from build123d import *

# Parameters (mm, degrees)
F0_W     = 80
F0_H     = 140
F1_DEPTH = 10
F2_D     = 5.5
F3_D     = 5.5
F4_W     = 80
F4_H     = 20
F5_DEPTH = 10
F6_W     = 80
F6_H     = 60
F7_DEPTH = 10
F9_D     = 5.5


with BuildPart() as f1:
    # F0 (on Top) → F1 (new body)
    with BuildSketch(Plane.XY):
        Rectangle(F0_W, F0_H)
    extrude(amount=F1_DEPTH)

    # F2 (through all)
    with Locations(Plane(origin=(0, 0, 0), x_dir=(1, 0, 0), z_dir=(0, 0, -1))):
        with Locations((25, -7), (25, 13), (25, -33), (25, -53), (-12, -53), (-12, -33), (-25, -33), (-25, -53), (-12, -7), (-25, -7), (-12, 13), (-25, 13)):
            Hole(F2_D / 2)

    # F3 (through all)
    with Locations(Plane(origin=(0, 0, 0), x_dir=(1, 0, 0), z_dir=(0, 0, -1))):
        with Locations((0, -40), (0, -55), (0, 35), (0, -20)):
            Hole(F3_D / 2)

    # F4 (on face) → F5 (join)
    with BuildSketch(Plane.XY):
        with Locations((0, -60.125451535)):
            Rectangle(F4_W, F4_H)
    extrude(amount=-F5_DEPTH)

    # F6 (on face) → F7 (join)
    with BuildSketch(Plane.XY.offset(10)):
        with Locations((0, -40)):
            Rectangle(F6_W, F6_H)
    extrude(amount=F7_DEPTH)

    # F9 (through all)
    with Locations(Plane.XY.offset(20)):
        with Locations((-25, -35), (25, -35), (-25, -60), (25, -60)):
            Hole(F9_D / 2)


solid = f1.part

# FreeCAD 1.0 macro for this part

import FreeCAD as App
import Part
import Sketcher

doc = App.newDocument("Part")
params = doc.addObject("Spreadsheet::Sheet", "Params")
for row, (alias, value) in enumerate([
    ("sketch1_width", "80 mm"),
    ("sketch1_height", "140 mm"),
    ("pad1_length", "10 mm"),
    ("sketch2_diameter", "5.5 mm"),
    ("hole_diameter", "5.5 mm"),
    ("sketch3_diameter", "5.5 mm"),
    ("hole2_diameter", "5.5 mm"),
    ("sketch4_width", "80 mm"),
    ("sketch4_height", "20 mm"),
    ("pad2_length", "10 mm"),
    ("sketch5_width", "80 mm"),
    ("sketch5_height", "60 mm"),
    ("pad3_length", "10 mm"),
    ("sketch6_diameter", "5.5 mm"),
    ("hole3_diameter", "5.5 mm"),
], start=1):
    params.set(f"A{row}", alias)
    params.set(f"B{row}", "=" + value)
    params.setAlias(f"B{row}", alias)

body = doc.addObject("PartDesign::Body", "Body")

# Sketch on XY plane
sketch1 = body.newObject("Sketcher::SketchObject", "Sketch")
sketch1.AttachmentSupport = (doc.getObject("XY_Plane"), [""])
sketch1.MapMode = "FlatFace"
sketch1.addGeometry(Part.LineSegment(App.Vector(-40, 70, 0), App.Vector(-40, -70, 0)), False)
sketch1.addGeometry(Part.LineSegment(App.Vector(-40, -70, 0), App.Vector(40, -70, 0)), False)
sketch1.addGeometry(Part.LineSegment(App.Vector(40, -70, 0), App.Vector(40, 70, 0)), False)
sketch1.addGeometry(Part.LineSegment(App.Vector(40, 70, 0), App.Vector(-40, 70, 0)), False)
sketch1.addConstraint(Sketcher.Constraint("Coincident", 0, 2, 1, 1))
sketch1.addConstraint(Sketcher.Constraint("Coincident", 1, 2, 2, 1))
sketch1.addConstraint(Sketcher.Constraint("Coincident", 2, 2, 3, 1))
sketch1.addConstraint(Sketcher.Constraint("Coincident", 3, 2, 0, 1))
sketch1.addConstraint(Sketcher.Constraint("Vertical", 0))
sketch1.addConstraint(Sketcher.Constraint("Horizontal", 1))
sketch1.addConstraint(Sketcher.Constraint("Vertical", 2))
sketch1.addConstraint(Sketcher.Constraint("Horizontal", 3))
sketch1.addConstraint(Sketcher.Constraint("Symmetric", 0, 2, 2, 2, -1, 1))
sketch1.addConstraint(Sketcher.Constraint("DistanceX", 1, 1, 1, 2, 80.0))
sketch1.addConstraint(Sketcher.Constraint("DistanceY", 0, 2, 0, 1, 140.0))
sketch1.setExpression("Constraints[9]", "Params.sketch1_width")
sketch1.setExpression("Constraints[10]", "Params.sketch1_height")
pad1 = body.newObject("PartDesign::Pad", "Pad")
pad1.Profile = sketch1
pad1.setExpression("Length", "Params.pad1_length")

# Sketch on XY plane
sketch2 = body.newObject("Sketcher::SketchObject", "Sketch001")
sketch2.AttachmentSupport = (doc.getObject("XY_Plane"), [""])
sketch2.MapMode = "FlatFace"
sketch2.addGeometry(Part.Circle(App.Vector(25, 7, 0), App.Vector(0, 0, 1), 2.8), False)
sketch2.addGeometry(Part.Circle(App.Vector(25, -13, 0), App.Vector(0, 0, 1), 2.8), False)
sketch2.addGeometry(Part.Circle(App.Vector(25, 33, 0), App.Vector(0, 0, 1), 2.8), False)
sketch2.addGeometry(Part.Circle(App.Vector(25, 53, 0), App.Vector(0, 0, 1), 2.8), False)
sketch2.addGeometry(Part.Circle(App.Vector(-12, 53, 0), App.Vector(0, 0, 1), 2.8), False)
sketch2.addGeometry(Part.Circle(App.Vector(-12, 33, 0), App.Vector(0, 0, 1), 2.8), False)
sketch2.addGeometry(Part.Circle(App.Vector(-25, 33, 0), App.Vector(0, 0, 1), 2.8), False)
sketch2.addGeometry(Part.Circle(App.Vector(-25, 53, 0), App.Vector(0, 0, 1), 2.8), False)
sketch2.addGeometry(Part.Circle(App.Vector(-12, 7, 0), App.Vector(0, 0, 1), 2.8), False)
sketch2.addGeometry(Part.Circle(App.Vector(-25, 7, 0), App.Vector(0, 0, 1), 2.8), False)
sketch2.addGeometry(Part.Circle(App.Vector(-12, -13, 0), App.Vector(0, 0, 1), 2.8), False)
sketch2.addGeometry(Part.Circle(App.Vector(-25, -13, 0), App.Vector(0, 0, 1), 2.8), False)
sketch2.addConstraint(Sketcher.Constraint("Equal", 0, 1))
sketch2.addConstraint(Sketcher.Constraint("Equal", 1, 2))
sketch2.addConstraint(Sketcher.Constraint("Equal", 2, 3))
sketch2.addConstraint(Sketcher.Constraint("Equal", 3, 4))
sketch2.addConstraint(Sketcher.Constraint("Equal", 4, 5))
sketch2.addConstraint(Sketcher.Constraint("Equal", 5, 6))
sketch2.addConstraint(Sketcher.Constraint("Equal", 6, 7))
sketch2.addConstraint(Sketcher.Constraint("Equal", 7, 8))
sketch2.addConstraint(Sketcher.Constraint("Equal", 8, 9))
sketch2.addConstraint(Sketcher.Constraint("Equal", 9, 10))
sketch2.addConstraint(Sketcher.Constraint("Equal", 10, 11))
sketch2.addConstraint(Sketcher.Constraint("Symmetric", 2, 3, 6, 3, -2))
sketch2.addConstraint(Sketcher.Constraint("Symmetric", 3, 3, 7, 3, -2))
sketch2.addConstraint(Sketcher.Constraint("Symmetric", 0, 3, 9, 3, -2))
sketch2.addConstraint(Sketcher.Constraint("Symmetric", 1, 3, 11, 3, -2))
sketch2.addConstraint(Sketcher.Constraint("Horizontal", 3, 3, 4, 3))
sketch2.addConstraint(Sketcher.Constraint("Horizontal", 2, 3, 5, 3))
sketch2.addConstraint(Sketcher.Constraint("Horizontal", 0, 3, 8, 3))
sketch2.addConstraint(Sketcher.Constraint("Horizontal", 1, 3, 10, 3))
sketch2.addConstraint(Sketcher.Constraint("Vertical", 0, 3, 1, 3))
sketch2.addConstraint(Sketcher.Constraint("Vertical", 1, 3, 2, 3))
sketch2.addConstraint(Sketcher.Constraint("Vertical", 2, 3, 3, 3))
sketch2.addConstraint(Sketcher.Constraint("Vertical", 4, 3, 5, 3))
sketch2.addConstraint(Sketcher.Constraint("Vertical", 5, 3, 8, 3))
sketch2.addConstraint(Sketcher.Constraint("Vertical", 8, 3, 10, 3))
sketch2.addConstraint(Sketcher.Constraint("Diameter", 0, 5.5))
sketch2.addConstraint(Sketcher.Constraint("DistanceX", -1, 1, 0, 3, 25.0))
sketch2.addConstraint(Sketcher.Constraint("DistanceY", -1, 1, 0, 3, 7.0))
sketch2.addConstraint(Sketcher.Constraint("DistanceY", 1, 3, -1, 1, 13.0))
sketch2.addConstraint(Sketcher.Constraint("DistanceY", -1, 1, 2, 3, 33.0))
sketch2.addConstraint(Sketcher.Constraint("DistanceY", -1, 1, 3, 3, 53.0))
sketch2.addConstraint(Sketcher.Constraint("DistanceX", 4, 3, -1, 1, 12.0))
sketch2.setExpression("Constraints[25]", "Params.sketch2_diameter")
doc.recompute()
hole = body.newObject("PartDesign::Hole", "Hole")
hole.Profile = sketch2
hole.ThreadType = "None"
hole.setExpression("Diameter", "Params.hole_diameter")
hole.DepthType = "ThroughAll"
hole.Reversed = True

# Sketch on XY plane
sketch3 = body.newObject("Sketcher::SketchObject", "Sketch002")
sketch3.AttachmentSupport = (doc.getObject("XY_Plane"), [""])
sketch3.MapMode = "FlatFace"
sketch3.addGeometry(Part.Circle(App.Vector(0, 40, 0), App.Vector(0, 0, 1), 2.8), False)
sketch3.addGeometry(Part.Circle(App.Vector(0, 55, 0), App.Vector(0, 0, 1), 2.8), False)
sketch3.addGeometry(Part.Circle(App.Vector(0, -35, 0), App.Vector(0, 0, 1), 2.8), False)
sketch3.addGeometry(Part.Circle(App.Vector(0, 20, 0), App.Vector(0, 0, 1), 2.8), False)
sketch3.addConstraint(Sketcher.Constraint("Equal", 0, 1))
sketch3.addConstraint(Sketcher.Constraint("Equal", 1, 2))
sketch3.addConstraint(Sketcher.Constraint("Equal", 2, 3))
sketch3.addConstraint(Sketcher.Constraint("PointOnObject", 0, 3, -2))
sketch3.addConstraint(Sketcher.Constraint("PointOnObject", 1, 3, -2))
sketch3.addConstraint(Sketcher.Constraint("PointOnObject", 2, 3, -2))
sketch3.addConstraint(Sketcher.Constraint("PointOnObject", 3, 3, -2))
sketch3.addConstraint(Sketcher.Constraint("Diameter", 0, 5.5))
sketch3.addConstraint(Sketcher.Constraint("DistanceY", -1, 1, 0, 3, 40.0))
sketch3.addConstraint(Sketcher.Constraint("DistanceY", -1, 1, 1, 3, 55.0))
sketch3.addConstraint(Sketcher.Constraint("DistanceY", 2, 3, -1, 1, 35.0))
sketch3.addConstraint(Sketcher.Constraint("DistanceY", -1, 1, 3, 3, 20.0))
sketch3.setExpression("Constraints[7]", "Params.sketch3_diameter")
doc.recompute()
hole2 = body.newObject("PartDesign::Hole", "Hole001")
hole2.Profile = sketch3
hole2.ThreadType = "None"
hole2.setExpression("Diameter", "Params.hole2_diameter")
hole2.DepthType = "ThroughAll"
hole2.Reversed = True

# Sketch on XY plane
sketch4 = body.newObject("Sketcher::SketchObject", "Sketch003")
sketch4.AttachmentSupport = (doc.getObject("XY_Plane"), [""])
sketch4.MapMode = "FlatFace"
sketch4.addGeometry(Part.LineSegment(App.Vector(-40, -50, 0), App.Vector(-40, -70, 0)), False)
sketch4.addGeometry(Part.LineSegment(App.Vector(-40, -70, 0), App.Vector(40, -70, 0)), False)
sketch4.addGeometry(Part.LineSegment(App.Vector(40, -70, 0), App.Vector(40, -50, 0)), False)
sketch4.addGeometry(Part.LineSegment(App.Vector(40, -50, 0), App.Vector(-40, -50, 0)), False)
sketch4.addConstraint(Sketcher.Constraint("Coincident", 0, 2, 1, 1))
sketch4.addConstraint(Sketcher.Constraint("Coincident", 1, 2, 2, 1))
sketch4.addConstraint(Sketcher.Constraint("Coincident", 2, 2, 3, 1))
sketch4.addConstraint(Sketcher.Constraint("Coincident", 3, 2, 0, 1))
sketch4.addConstraint(Sketcher.Constraint("Vertical", 0))
sketch4.addConstraint(Sketcher.Constraint("Horizontal", 1))
sketch4.addConstraint(Sketcher.Constraint("Vertical", 2))
sketch4.addConstraint(Sketcher.Constraint("Horizontal", 3))
sketch4.addConstraint(Sketcher.Constraint("DistanceX", 1, 1, 1, 2, 80.0))
sketch4.addConstraint(Sketcher.Constraint("DistanceY", 0, 2, 0, 1, 20.0))
sketch4.addConstraint(Sketcher.Constraint("DistanceX", 0, 2, -1, 1, 40.0))
sketch4.addConstraint(Sketcher.Constraint("DistanceY", 0, 2, -1, 1, 70.125452))
sketch4.setExpression("Constraints[8]", "Params.sketch4_width")
sketch4.setExpression("Constraints[9]", "Params.sketch4_height")
pad2 = body.newObject("PartDesign::Pad", "Pad001")
pad2.Profile = sketch4
pad2.setExpression("Length", "Params.pad2_length")
pad2.Reversed = True

# Sketch on XY plane
sketch5 = body.newObject("Sketcher::SketchObject", "Sketch004")
sketch5.AttachmentSupport = (doc.getObject("XY_Plane"), [""])
sketch5.MapMode = "FlatFace"
sketch5.AttachmentOffset = App.Placement(App.Vector(0, 0, 10), App.Rotation())
sketch5.addGeometry(Part.LineSegment(App.Vector(-40, -10, 0), App.Vector(-40, -70, 0)), False)
sketch5.addGeometry(Part.LineSegment(App.Vector(-40, -70, 0), App.Vector(40, -70, 0)), False)
sketch5.addGeometry(Part.LineSegment(App.Vector(40, -70, 0), App.Vector(40, -10, 0)), False)
sketch5.addGeometry(Part.LineSegment(App.Vector(40, -10, 0), App.Vector(-40, -10, 0)), False)
sketch5.addConstraint(Sketcher.Constraint("Coincident", 0, 2, 1, 1))
sketch5.addConstraint(Sketcher.Constraint("Coincident", 1, 2, 2, 1))
sketch5.addConstraint(Sketcher.Constraint("Coincident", 2, 2, 3, 1))
sketch5.addConstraint(Sketcher.Constraint("Coincident", 3, 2, 0, 1))
sketch5.addConstraint(Sketcher.Constraint("Vertical", 0))
sketch5.addConstraint(Sketcher.Constraint("Horizontal", 1))
sketch5.addConstraint(Sketcher.Constraint("Vertical", 2))
sketch5.addConstraint(Sketcher.Constraint("Horizontal", 3))
sketch5.addConstraint(Sketcher.Constraint("DistanceX", 1, 1, 1, 2, 80.0))
sketch5.addConstraint(Sketcher.Constraint("DistanceY", 0, 2, 0, 1, 60.0))
sketch5.addConstraint(Sketcher.Constraint("DistanceX", 0, 2, -1, 1, 40.0))
sketch5.addConstraint(Sketcher.Constraint("DistanceY", 0, 2, -1, 1, 70.0))
sketch5.setExpression("Constraints[8]", "Params.sketch5_width")
sketch5.setExpression("Constraints[9]", "Params.sketch5_height")
pad3 = body.newObject("PartDesign::Pad", "Pad002")
pad3.Profile = sketch5
pad3.setExpression("Length", "Params.pad3_length")

# Sketch on XY plane
sketch6 = body.newObject("Sketcher::SketchObject", "Sketch005")
sketch6.AttachmentSupport = (doc.getObject("XY_Plane"), [""])
sketch6.MapMode = "FlatFace"
sketch6.AttachmentOffset = App.Placement(App.Vector(0, 0, 20), App.Rotation())
sketch6.addGeometry(Part.Circle(App.Vector(-25, -35, 0), App.Vector(0, 0, 1), 2.8), False)
sketch6.addGeometry(Part.Circle(App.Vector(25, -35, 0), App.Vector(0, 0, 1), 2.8), False)
sketch6.addGeometry(Part.Circle(App.Vector(-25, -60, 0), App.Vector(0, 0, 1), 2.8), False)
sketch6.addGeometry(Part.Circle(App.Vector(25, -60, 0), App.Vector(0, 0, 1), 2.8), False)
sketch6.addConstraint(Sketcher.Constraint("Equal", 0, 1))
sketch6.addConstraint(Sketcher.Constraint("Equal", 1, 2))
sketch6.addConstraint(Sketcher.Constraint("Equal", 2, 3))
sketch6.addConstraint(Sketcher.Constraint("Symmetric", 0, 3, 1, 3, -2))
sketch6.addConstraint(Sketcher.Constraint("Symmetric", 2, 3, 3, 3, -2))
sketch6.addConstraint(Sketcher.Constraint("Vertical", 0, 3, 2, 3))
sketch6.addConstraint(Sketcher.Constraint("Diameter", 0, 5.5))
sketch6.addConstraint(Sketcher.Constraint("DistanceX", 0, 3, -1, 1, 25.0))
sketch6.addConstraint(Sketcher.Constraint("DistanceY", 0, 3, -1, 1, 35.0))
sketch6.addConstraint(Sketcher.Constraint("DistanceY", 2, 3, -1, 1, 60.0))
sketch6.setExpression("Constraints[6]", "Params.sketch6_diameter")
doc.recompute()
hole3 = body.newObject("PartDesign::Hole", "Hole002")
hole3.Profile = sketch6
hole3.ThreadType = "None"
hole3.setExpression("Diameter", "Params.hole3_diameter")
hole3.DepthType = "ThroughAll"

doc.recompute()
